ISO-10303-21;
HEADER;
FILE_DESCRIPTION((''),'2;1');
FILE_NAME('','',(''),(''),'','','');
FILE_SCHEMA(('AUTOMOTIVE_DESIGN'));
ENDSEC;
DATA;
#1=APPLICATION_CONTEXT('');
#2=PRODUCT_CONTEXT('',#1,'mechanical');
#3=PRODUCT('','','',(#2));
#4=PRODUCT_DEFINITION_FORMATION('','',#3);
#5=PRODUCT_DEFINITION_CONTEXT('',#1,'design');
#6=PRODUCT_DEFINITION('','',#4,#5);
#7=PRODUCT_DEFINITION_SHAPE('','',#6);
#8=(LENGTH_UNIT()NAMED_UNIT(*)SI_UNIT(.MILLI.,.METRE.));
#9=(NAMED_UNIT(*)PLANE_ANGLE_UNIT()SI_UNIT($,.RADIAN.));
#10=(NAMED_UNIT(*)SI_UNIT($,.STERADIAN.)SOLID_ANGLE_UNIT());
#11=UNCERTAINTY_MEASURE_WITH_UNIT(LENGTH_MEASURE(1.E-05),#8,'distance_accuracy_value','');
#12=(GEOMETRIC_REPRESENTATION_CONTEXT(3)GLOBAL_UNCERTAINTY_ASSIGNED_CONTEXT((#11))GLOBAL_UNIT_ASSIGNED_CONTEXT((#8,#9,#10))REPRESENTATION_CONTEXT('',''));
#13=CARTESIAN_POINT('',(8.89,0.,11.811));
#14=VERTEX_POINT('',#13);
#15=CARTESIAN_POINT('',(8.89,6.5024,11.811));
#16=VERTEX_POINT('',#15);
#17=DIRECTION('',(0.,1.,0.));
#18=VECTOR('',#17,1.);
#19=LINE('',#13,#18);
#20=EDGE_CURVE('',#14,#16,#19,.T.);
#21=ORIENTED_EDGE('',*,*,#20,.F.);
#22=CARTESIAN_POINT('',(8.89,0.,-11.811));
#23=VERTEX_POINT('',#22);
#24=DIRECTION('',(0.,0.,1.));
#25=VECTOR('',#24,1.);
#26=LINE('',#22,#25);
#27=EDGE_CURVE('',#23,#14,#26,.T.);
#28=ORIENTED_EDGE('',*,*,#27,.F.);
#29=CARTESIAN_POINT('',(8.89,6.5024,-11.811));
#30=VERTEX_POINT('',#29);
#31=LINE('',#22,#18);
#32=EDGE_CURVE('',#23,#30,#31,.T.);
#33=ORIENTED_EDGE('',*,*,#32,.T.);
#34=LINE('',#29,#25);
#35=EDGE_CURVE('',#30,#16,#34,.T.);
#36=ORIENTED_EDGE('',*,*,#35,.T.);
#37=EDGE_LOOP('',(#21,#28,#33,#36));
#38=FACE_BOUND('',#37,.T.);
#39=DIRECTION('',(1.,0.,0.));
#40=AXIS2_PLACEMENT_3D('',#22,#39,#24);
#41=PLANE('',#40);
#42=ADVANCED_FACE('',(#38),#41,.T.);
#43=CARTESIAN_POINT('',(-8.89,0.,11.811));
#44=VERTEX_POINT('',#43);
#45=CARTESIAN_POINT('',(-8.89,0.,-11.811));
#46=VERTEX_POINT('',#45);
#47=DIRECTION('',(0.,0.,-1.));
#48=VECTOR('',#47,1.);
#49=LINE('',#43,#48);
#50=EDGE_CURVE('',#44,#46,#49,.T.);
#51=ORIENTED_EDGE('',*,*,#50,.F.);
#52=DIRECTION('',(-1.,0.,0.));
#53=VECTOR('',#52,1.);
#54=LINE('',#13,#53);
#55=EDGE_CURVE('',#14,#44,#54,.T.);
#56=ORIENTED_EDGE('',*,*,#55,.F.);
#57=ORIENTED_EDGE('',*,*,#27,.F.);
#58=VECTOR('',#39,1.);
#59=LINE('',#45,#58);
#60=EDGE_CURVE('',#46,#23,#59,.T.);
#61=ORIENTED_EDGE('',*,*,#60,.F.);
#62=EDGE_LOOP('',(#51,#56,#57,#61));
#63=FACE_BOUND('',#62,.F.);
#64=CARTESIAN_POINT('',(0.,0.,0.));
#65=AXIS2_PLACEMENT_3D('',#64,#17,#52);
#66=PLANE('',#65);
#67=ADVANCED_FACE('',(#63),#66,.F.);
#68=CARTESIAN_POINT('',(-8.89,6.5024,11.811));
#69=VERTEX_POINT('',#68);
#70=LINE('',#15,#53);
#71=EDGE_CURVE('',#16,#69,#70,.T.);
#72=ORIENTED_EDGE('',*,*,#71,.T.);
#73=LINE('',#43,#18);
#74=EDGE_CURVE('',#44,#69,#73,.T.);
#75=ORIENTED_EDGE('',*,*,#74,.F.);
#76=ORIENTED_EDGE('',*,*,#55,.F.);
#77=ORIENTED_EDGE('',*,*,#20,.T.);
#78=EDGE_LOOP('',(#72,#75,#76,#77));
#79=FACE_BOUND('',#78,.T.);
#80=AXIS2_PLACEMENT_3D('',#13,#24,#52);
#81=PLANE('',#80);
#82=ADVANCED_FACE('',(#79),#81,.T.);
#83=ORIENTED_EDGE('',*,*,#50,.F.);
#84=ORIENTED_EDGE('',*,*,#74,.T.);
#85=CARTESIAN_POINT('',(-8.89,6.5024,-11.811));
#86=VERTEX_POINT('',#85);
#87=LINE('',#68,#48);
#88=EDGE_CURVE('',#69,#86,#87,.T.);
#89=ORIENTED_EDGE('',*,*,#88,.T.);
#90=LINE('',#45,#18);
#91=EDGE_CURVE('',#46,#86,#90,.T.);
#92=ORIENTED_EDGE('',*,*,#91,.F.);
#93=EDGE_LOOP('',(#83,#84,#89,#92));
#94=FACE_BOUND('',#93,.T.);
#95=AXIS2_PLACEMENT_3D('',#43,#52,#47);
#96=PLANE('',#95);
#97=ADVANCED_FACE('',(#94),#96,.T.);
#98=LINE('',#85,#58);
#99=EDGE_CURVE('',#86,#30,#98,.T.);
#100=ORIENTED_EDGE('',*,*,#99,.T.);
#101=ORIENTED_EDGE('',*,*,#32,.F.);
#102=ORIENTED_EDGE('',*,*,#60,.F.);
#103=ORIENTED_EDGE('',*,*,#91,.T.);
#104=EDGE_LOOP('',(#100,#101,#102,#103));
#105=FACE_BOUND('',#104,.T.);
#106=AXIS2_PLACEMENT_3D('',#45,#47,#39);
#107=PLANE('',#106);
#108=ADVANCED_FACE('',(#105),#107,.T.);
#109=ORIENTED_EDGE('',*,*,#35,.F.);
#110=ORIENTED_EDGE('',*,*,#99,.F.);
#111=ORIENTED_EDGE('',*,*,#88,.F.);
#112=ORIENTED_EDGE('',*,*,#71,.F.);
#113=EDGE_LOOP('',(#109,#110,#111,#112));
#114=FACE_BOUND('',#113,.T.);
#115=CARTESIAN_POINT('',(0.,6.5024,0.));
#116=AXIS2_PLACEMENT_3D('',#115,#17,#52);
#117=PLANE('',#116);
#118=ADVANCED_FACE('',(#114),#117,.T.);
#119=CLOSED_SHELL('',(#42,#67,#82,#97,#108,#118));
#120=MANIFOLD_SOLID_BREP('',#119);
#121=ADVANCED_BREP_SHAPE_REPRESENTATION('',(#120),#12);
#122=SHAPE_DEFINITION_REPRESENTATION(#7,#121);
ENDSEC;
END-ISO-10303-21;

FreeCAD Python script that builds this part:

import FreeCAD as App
import Part
import Sketcher
Q = App.Units.Quantity

doc = App.newDocument("Part")
body = doc.addObject("PartDesign::Body", "Body")

# Sketch on XZ plane
sketch1 = doc.addObject("Sketcher::SketchObject", "Sketch")
body.addObject(sketch1)
sketch1.AttachmentSupport = (doc.XZ_Plane, [""])
sketch1.MapMode = "FlatFace"
sketch1.addGeometry(Part.LineSegment(App.Vector(-9, 12, 0), App.Vector(9, 12, 0)), False)
sketch1.addGeometry(Part.LineSegment(App.Vector(9, 12, 0), App.Vector(9, -12, 0)), False)
sketch1.addGeometry(Part.LineSegment(App.Vector(9, -12, 0), App.Vector(-9, -12, 0)), False)
sketch1.addGeometry(Part.LineSegment(App.Vector(-9, -12, 0), App.Vector(-9, 12, 0)), False)
sketch1.addConstraint(Sketcher.Constraint("Coincident", 0, 2, 1, 1))
sketch1.addConstraint(Sketcher.Constraint("Coincident", 1, 2, 2, 1))
sketch1.addConstraint(Sketcher.Constraint("Coincident", 2, 2, 3, 1))
sketch1.addConstraint(Sketcher.Constraint("Coincident", 3, 2, 0, 1))
sketch1.addConstraint(Sketcher.Constraint("Horizontal", 0))
sketch1.addConstraint(Sketcher.Constraint("Vertical", 1))
sketch1.addConstraint(Sketcher.Constraint("Horizontal", 2))
sketch1.addConstraint(Sketcher.Constraint("Vertical", 3))
sketch1.addConstraint(Sketcher.Constraint("Symmetric", 0, 2, 2, 2, -1, 1))
sketch1.addConstraint(Sketcher.Constraint("DistanceX", 0, 1, 0, 2, Q("0.7 in")))
sketch1.addConstraint(Sketcher.Constraint("DistanceY", 1, 2, 1, 1, Q("0.93 in")))
pad1 = doc.addObject("PartDesign::Pad", "Pad")
body.addObject(pad1)
pad1.Profile = sketch1
pad1.Length = Q("0.256 in")
pad1.Reversed = True

doc.recompute()
